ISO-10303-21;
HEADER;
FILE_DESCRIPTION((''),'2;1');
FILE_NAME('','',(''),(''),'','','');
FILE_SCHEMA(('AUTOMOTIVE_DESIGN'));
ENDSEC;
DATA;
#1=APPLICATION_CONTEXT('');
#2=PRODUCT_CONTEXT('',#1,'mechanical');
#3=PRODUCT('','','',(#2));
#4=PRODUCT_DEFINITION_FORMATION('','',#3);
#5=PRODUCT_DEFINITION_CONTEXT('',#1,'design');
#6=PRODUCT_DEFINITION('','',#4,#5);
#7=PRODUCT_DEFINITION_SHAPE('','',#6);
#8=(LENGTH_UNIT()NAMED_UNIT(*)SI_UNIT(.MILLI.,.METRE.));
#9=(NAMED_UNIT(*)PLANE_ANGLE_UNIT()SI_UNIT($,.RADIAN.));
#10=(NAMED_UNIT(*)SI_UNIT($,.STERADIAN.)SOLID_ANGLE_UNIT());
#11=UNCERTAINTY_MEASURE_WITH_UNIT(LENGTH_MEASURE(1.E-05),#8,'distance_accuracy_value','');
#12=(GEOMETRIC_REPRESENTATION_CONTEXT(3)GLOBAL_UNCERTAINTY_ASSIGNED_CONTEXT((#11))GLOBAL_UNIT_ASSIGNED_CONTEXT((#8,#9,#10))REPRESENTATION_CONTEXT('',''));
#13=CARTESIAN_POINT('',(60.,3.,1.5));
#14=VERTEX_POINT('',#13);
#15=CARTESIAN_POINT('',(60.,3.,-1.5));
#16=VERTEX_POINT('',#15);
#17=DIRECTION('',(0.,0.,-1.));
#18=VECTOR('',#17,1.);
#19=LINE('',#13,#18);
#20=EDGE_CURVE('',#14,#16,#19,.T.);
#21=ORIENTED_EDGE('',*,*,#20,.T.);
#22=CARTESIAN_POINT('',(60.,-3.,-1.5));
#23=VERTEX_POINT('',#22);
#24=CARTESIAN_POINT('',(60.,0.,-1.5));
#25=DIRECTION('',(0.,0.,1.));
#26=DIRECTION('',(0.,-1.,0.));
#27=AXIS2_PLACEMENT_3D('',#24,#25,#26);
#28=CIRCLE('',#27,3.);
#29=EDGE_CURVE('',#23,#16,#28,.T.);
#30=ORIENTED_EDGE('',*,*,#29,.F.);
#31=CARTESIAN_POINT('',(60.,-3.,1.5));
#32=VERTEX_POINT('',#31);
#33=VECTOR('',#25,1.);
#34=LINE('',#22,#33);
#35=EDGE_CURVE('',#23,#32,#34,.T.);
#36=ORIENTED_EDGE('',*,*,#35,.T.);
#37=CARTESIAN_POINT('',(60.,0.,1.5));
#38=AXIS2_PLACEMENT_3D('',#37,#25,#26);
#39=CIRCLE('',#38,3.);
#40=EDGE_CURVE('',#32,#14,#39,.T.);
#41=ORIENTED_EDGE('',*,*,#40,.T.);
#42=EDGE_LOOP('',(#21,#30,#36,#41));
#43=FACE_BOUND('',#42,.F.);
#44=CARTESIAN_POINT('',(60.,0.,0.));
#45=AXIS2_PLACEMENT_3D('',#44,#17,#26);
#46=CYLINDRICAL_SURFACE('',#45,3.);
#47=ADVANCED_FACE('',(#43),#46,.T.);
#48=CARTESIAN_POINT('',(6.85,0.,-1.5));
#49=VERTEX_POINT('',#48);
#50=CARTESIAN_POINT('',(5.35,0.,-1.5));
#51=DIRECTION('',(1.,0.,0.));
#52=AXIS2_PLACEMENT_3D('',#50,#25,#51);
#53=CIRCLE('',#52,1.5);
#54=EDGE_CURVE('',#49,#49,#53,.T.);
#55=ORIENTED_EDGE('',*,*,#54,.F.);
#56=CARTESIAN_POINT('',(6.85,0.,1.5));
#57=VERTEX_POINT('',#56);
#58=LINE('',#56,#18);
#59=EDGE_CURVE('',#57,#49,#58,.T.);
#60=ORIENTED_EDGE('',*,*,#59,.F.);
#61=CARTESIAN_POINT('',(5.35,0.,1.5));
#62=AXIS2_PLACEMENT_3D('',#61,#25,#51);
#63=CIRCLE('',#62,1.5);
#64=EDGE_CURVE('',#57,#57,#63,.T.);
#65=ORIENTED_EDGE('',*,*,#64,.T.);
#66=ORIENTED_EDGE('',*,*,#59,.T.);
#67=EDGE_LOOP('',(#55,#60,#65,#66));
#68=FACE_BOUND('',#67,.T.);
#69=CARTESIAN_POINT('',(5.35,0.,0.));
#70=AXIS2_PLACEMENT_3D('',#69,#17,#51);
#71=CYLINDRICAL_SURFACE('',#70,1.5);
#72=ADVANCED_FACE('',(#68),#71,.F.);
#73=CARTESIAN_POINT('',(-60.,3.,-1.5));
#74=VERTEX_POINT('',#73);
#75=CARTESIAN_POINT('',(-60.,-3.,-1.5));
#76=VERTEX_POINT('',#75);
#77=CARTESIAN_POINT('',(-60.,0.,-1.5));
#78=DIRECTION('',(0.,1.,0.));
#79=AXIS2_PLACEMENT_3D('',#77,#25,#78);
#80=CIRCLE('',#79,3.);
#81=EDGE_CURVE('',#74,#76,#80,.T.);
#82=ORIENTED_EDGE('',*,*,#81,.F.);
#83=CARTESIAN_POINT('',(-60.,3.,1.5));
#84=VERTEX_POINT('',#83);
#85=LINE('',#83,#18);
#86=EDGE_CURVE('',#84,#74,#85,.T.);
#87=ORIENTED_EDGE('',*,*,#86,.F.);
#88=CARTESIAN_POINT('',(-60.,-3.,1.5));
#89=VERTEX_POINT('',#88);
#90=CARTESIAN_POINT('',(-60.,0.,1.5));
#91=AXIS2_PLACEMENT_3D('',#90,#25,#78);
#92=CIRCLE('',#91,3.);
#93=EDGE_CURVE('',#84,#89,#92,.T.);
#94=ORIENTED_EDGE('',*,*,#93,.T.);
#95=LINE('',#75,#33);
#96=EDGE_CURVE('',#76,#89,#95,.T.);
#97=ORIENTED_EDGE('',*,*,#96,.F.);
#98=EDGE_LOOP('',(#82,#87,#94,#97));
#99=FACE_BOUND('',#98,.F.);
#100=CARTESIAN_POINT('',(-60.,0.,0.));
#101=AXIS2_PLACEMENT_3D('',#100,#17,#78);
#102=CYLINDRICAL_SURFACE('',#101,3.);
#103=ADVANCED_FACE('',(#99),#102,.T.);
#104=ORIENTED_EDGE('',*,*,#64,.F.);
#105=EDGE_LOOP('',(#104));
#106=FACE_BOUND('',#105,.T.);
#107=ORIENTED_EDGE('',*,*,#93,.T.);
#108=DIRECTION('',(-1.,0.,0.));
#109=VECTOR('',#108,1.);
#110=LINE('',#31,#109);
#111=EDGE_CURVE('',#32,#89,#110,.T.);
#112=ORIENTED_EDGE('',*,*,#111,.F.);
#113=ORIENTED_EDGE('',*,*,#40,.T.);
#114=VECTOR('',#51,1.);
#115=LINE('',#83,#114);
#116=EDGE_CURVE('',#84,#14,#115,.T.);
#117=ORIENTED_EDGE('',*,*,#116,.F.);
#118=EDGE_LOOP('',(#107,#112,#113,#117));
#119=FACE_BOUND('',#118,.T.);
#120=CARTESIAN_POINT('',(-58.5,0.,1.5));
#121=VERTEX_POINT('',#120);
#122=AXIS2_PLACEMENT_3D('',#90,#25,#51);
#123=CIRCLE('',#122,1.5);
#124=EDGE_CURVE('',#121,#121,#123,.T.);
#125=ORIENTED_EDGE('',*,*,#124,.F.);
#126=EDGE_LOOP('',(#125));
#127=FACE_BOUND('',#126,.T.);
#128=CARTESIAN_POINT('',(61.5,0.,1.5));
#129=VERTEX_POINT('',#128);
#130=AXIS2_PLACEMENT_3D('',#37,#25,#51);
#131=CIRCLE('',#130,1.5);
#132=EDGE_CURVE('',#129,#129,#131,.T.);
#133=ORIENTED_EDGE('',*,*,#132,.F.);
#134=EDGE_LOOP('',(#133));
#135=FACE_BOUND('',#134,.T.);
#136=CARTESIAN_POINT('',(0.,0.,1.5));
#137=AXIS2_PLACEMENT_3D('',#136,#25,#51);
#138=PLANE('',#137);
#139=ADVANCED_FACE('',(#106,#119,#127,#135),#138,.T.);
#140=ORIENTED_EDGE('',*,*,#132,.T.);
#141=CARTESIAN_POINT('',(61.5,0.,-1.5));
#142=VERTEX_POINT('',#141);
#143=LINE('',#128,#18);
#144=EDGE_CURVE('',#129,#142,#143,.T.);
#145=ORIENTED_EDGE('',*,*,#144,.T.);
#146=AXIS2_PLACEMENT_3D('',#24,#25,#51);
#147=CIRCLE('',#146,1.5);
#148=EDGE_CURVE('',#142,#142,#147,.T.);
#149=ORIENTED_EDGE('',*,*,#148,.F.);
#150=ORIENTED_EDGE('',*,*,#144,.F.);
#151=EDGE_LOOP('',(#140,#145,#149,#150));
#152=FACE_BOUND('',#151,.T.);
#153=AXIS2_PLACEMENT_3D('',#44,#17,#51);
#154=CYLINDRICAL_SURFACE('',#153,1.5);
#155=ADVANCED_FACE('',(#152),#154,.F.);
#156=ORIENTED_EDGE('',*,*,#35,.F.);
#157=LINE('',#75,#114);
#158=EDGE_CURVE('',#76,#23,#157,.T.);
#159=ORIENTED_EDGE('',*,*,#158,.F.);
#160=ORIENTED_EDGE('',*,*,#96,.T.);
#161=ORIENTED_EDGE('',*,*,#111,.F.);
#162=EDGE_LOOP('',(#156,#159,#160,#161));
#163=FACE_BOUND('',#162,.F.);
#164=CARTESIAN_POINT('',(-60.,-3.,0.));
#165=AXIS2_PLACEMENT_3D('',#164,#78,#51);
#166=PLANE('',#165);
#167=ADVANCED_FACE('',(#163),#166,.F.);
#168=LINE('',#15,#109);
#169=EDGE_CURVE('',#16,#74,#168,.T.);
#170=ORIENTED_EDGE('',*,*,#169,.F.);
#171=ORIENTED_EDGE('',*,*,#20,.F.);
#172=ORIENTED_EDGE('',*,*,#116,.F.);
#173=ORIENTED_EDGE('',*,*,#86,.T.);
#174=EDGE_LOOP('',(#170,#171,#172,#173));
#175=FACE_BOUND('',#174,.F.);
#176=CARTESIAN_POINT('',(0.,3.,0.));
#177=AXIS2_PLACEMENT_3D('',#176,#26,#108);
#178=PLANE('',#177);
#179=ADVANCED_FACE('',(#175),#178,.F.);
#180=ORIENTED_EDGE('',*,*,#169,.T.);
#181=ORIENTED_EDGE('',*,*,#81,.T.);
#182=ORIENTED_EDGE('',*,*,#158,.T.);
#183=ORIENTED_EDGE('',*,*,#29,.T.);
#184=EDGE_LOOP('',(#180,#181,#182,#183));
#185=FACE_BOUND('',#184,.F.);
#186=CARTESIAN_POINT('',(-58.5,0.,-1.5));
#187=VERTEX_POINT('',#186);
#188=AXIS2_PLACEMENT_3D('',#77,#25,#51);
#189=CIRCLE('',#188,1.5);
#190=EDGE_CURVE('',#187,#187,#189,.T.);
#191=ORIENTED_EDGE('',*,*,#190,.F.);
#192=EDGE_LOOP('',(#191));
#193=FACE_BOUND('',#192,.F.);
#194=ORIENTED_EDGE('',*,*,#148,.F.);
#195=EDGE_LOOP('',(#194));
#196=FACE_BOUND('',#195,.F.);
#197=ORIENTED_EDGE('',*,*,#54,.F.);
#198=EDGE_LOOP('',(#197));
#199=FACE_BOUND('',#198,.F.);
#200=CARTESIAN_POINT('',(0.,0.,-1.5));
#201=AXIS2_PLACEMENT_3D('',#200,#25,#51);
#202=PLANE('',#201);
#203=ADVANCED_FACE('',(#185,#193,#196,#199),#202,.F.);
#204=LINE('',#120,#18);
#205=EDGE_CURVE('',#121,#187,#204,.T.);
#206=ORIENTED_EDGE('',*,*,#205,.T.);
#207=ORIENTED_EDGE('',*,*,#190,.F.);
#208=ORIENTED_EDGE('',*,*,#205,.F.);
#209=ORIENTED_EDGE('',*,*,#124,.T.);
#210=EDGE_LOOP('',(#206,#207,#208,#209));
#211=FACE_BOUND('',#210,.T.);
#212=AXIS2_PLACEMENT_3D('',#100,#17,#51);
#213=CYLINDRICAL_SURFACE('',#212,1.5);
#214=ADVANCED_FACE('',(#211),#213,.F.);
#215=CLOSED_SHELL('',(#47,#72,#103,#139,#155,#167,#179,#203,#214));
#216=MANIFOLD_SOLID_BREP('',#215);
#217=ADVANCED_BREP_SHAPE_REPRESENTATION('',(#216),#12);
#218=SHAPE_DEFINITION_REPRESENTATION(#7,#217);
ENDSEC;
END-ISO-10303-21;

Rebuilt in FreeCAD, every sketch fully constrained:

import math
import FreeCAD as App
import Part
import Sketcher

V = App.Vector

doc = App.newDocument("Part")
body = doc.addObject("PartDesign::Body", "Body")

# Sketch on XY plane
sketch1 = body.newObject("Sketcher::SketchObject", "Sketch")
sketch1.AttachmentSupport = (doc.getObject("XY_Plane"), [""])
sketch1.MapMode = "FlatFace"
sketch1.addGeometry([
    Part.ArcOfCircle(Part.Circle(V(-60, 0, 0), V(0, 0, 1), 3), math.radians(90), math.radians(270)),  # 0
    Part.LineSegment(V(-60, -3, 0), V(60, -3, 0)),  # 1
    Part.ArcOfCircle(Part.Circle(V(60, 0, 0), V(0, 0, 1), 3), math.radians(-90), math.radians(90)),  # 2
    Part.LineSegment(V(60, 3, 0), V(-60, 3, 0)),  # 3
    Part.Circle(V(-60, 0, 0), V(0, 0, 1), 1.5),  # 4
    Part.Circle(V(60, 0, 0), V(0, 0, 1), 1.5),  # 5
    Part.Circle(V(5.35, 0, 0), V(0, 0, 1), 1.5),  # 6
], False)
sketch1.addConstraint([
    Sketcher.Constraint("Tangent", 0, 2, 1, 1),
    Sketcher.Constraint("Tangent", 1, 2, 2, 1),
    Sketcher.Constraint("Tangent", 2, 2, 3, 1),
    Sketcher.Constraint("Tangent", 3, 2, 0, 1),
    Sketcher.Constraint("Horizontal", 1),
    Sketcher.Constraint("Horizontal", 3),
    Sketcher.Constraint("Coincident", 4, 3, 0, 3),
    Sketcher.Constraint("Coincident", 5, 3, 2, 3),
    Sketcher.Constraint("Equal", 4, 5),
    Sketcher.Constraint("Equal", 5, 6),
    Sketcher.Constraint("Symmetric", 0, 3, 2, 3, -1, 1),
    Sketcher.Constraint("PointOnObject", 6, 3, -1),
    Sketcher.Constraint("Diameter", 4, 3.0),
    Sketcher.Constraint("Radius", 0, 3.0),
    Sketcher.Constraint("DistanceX", 1, 1, 1, 2, 120.0),
    Sketcher.Constraint("DistanceX", 6, 3, 2, 3, 54.65),
])
pad1 = body.newObject("PartDesign::Pad", "Pad")
pad1.Profile = sketch1
pad1.Length = 3
pad1.Midplane = True

doc.recompute()
